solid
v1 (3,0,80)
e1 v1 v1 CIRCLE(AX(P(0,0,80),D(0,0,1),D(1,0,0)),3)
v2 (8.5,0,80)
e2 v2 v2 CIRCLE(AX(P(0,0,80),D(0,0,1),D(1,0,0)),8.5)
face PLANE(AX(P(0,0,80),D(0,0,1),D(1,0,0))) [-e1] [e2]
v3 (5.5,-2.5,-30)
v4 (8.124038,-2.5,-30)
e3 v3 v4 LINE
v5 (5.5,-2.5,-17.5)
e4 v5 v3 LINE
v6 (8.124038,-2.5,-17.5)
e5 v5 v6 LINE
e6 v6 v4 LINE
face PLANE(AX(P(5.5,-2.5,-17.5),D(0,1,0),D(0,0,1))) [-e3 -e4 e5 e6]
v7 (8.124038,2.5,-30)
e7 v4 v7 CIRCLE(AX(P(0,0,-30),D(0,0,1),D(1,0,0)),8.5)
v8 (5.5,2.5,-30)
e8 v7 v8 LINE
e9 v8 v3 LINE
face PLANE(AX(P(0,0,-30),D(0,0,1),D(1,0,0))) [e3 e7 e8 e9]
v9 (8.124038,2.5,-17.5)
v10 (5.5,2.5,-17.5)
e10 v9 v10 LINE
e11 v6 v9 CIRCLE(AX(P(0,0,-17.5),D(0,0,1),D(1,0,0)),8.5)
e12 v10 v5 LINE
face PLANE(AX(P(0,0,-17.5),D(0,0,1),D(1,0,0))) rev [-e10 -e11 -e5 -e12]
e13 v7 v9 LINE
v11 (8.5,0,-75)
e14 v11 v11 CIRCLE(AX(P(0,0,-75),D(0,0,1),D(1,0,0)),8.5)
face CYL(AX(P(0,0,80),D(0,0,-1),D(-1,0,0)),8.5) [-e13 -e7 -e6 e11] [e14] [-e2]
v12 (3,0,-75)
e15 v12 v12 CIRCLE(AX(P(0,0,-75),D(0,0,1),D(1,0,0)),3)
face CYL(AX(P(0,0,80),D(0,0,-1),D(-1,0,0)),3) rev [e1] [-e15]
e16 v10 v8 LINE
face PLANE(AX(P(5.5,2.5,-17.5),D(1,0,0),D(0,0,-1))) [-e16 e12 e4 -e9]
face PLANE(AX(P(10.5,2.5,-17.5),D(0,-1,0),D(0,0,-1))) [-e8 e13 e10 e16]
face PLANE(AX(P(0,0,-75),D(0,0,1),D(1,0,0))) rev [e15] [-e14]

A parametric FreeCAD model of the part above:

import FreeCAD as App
import Part
import Sketcher
Q = App.Units.Quantity


def add_polygon(sketch, points):
    """Adds a closed chain of lines whose ends are joined by coincident constraints."""
    first, n = sketch.GeometryCount, len(points)
    for a, b in zip(points, points[1:] + points[:1]):
        sketch.addGeometry(Part.LineSegment(App.Vector(*a, 0), App.Vector(*b, 0)), False)
    for i in range(n):
        sketch.addConstraint(Sketcher.Constraint("Coincident", first + i, 2, first + (i + 1) % n, 1))

doc = App.newDocument("Part")
body = doc.addObject("PartDesign::Body", "Body")

# Sketch on XY plane
sketch1 = doc.addObject("Sketcher::SketchObject", "Sketch")
body.addObject(sketch1)
sketch1.AttachmentSupport = (doc.XY_Plane, [""])
sketch1.MapMode = "FlatFace"
sketch1.AttachmentOffset = App.Placement(App.Vector(0, 0, -75), App.Rotation())
sketch1.addGeometry(Part.Circle(App.Vector(0, 0, 0), App.Vector(0, 0, 1), 8.5), False)
sketch1.addGeometry(Part.Circle(App.Vector(0, 0, 0), App.Vector(0, 0, 1), 3), False)
sketch1.addConstraint(Sketcher.Constraint("Coincident", 0, 3, -1, 1))
sketch1.addConstraint(Sketcher.Constraint("Coincident", 1, 3, -1, 1))
sketch1.addConstraint(Sketcher.Constraint("Diameter", 0, Q("17 mm")))
sketch1.addConstraint(Sketcher.Constraint("Diameter", 1, Q("6 mm")))
pad1 = doc.addObject("PartDesign::Pad", "Pad")
body.addObject(pad1)
pad1.Profile = sketch1
pad1.Length = 155

# Sketch on XY plane
sketch2 = doc.addObject("Sketcher::SketchObject", "Sketch001")
body.addObject(sketch2)
sketch2.AttachmentSupport = (doc.XY_Plane, [""])
sketch2.MapMode = "FlatFace"
sketch2.AttachmentOffset = App.Placement(App.Vector(0, 0, -30), App.Rotation())
add_polygon(sketch2, [(5.5, 2.5), (5.5, -2.5), (10.5, -2.5), (10.5, 2.5)])  # lines 0-3
sketch2.addConstraint(Sketcher.Constraint("Vertical", 0))
sketch2.addConstraint(Sketcher.Constraint("Horizontal", 1))
sketch2.addConstraint(Sketcher.Constraint("Vertical", 2))
sketch2.addConstraint(Sketcher.Constraint("Horizontal", 3))
sketch2.addConstraint(Sketcher.Constraint("Equal", 3, 0))
sketch2.addConstraint(Sketcher.Constraint("DistanceX", 1, 1, 1, 2, Q("5 mm")))
sketch2.addConstraint(Sketcher.Constraint("DistanceX", -1, 1, 0, 2, Q("5.5 mm")))
sketch2.addConstraint(Sketcher.Constraint("DistanceY", 0, 2, -1, 1, Q("2.5 mm")))
pocket1 = doc.addObject("PartDesign::Pocket", "Pocket")
body.addObject(pocket1)
pocket1.Profile = sketch2
pocket1.Length = 12.5
pocket1.Reversed = True

doc.recompute()
